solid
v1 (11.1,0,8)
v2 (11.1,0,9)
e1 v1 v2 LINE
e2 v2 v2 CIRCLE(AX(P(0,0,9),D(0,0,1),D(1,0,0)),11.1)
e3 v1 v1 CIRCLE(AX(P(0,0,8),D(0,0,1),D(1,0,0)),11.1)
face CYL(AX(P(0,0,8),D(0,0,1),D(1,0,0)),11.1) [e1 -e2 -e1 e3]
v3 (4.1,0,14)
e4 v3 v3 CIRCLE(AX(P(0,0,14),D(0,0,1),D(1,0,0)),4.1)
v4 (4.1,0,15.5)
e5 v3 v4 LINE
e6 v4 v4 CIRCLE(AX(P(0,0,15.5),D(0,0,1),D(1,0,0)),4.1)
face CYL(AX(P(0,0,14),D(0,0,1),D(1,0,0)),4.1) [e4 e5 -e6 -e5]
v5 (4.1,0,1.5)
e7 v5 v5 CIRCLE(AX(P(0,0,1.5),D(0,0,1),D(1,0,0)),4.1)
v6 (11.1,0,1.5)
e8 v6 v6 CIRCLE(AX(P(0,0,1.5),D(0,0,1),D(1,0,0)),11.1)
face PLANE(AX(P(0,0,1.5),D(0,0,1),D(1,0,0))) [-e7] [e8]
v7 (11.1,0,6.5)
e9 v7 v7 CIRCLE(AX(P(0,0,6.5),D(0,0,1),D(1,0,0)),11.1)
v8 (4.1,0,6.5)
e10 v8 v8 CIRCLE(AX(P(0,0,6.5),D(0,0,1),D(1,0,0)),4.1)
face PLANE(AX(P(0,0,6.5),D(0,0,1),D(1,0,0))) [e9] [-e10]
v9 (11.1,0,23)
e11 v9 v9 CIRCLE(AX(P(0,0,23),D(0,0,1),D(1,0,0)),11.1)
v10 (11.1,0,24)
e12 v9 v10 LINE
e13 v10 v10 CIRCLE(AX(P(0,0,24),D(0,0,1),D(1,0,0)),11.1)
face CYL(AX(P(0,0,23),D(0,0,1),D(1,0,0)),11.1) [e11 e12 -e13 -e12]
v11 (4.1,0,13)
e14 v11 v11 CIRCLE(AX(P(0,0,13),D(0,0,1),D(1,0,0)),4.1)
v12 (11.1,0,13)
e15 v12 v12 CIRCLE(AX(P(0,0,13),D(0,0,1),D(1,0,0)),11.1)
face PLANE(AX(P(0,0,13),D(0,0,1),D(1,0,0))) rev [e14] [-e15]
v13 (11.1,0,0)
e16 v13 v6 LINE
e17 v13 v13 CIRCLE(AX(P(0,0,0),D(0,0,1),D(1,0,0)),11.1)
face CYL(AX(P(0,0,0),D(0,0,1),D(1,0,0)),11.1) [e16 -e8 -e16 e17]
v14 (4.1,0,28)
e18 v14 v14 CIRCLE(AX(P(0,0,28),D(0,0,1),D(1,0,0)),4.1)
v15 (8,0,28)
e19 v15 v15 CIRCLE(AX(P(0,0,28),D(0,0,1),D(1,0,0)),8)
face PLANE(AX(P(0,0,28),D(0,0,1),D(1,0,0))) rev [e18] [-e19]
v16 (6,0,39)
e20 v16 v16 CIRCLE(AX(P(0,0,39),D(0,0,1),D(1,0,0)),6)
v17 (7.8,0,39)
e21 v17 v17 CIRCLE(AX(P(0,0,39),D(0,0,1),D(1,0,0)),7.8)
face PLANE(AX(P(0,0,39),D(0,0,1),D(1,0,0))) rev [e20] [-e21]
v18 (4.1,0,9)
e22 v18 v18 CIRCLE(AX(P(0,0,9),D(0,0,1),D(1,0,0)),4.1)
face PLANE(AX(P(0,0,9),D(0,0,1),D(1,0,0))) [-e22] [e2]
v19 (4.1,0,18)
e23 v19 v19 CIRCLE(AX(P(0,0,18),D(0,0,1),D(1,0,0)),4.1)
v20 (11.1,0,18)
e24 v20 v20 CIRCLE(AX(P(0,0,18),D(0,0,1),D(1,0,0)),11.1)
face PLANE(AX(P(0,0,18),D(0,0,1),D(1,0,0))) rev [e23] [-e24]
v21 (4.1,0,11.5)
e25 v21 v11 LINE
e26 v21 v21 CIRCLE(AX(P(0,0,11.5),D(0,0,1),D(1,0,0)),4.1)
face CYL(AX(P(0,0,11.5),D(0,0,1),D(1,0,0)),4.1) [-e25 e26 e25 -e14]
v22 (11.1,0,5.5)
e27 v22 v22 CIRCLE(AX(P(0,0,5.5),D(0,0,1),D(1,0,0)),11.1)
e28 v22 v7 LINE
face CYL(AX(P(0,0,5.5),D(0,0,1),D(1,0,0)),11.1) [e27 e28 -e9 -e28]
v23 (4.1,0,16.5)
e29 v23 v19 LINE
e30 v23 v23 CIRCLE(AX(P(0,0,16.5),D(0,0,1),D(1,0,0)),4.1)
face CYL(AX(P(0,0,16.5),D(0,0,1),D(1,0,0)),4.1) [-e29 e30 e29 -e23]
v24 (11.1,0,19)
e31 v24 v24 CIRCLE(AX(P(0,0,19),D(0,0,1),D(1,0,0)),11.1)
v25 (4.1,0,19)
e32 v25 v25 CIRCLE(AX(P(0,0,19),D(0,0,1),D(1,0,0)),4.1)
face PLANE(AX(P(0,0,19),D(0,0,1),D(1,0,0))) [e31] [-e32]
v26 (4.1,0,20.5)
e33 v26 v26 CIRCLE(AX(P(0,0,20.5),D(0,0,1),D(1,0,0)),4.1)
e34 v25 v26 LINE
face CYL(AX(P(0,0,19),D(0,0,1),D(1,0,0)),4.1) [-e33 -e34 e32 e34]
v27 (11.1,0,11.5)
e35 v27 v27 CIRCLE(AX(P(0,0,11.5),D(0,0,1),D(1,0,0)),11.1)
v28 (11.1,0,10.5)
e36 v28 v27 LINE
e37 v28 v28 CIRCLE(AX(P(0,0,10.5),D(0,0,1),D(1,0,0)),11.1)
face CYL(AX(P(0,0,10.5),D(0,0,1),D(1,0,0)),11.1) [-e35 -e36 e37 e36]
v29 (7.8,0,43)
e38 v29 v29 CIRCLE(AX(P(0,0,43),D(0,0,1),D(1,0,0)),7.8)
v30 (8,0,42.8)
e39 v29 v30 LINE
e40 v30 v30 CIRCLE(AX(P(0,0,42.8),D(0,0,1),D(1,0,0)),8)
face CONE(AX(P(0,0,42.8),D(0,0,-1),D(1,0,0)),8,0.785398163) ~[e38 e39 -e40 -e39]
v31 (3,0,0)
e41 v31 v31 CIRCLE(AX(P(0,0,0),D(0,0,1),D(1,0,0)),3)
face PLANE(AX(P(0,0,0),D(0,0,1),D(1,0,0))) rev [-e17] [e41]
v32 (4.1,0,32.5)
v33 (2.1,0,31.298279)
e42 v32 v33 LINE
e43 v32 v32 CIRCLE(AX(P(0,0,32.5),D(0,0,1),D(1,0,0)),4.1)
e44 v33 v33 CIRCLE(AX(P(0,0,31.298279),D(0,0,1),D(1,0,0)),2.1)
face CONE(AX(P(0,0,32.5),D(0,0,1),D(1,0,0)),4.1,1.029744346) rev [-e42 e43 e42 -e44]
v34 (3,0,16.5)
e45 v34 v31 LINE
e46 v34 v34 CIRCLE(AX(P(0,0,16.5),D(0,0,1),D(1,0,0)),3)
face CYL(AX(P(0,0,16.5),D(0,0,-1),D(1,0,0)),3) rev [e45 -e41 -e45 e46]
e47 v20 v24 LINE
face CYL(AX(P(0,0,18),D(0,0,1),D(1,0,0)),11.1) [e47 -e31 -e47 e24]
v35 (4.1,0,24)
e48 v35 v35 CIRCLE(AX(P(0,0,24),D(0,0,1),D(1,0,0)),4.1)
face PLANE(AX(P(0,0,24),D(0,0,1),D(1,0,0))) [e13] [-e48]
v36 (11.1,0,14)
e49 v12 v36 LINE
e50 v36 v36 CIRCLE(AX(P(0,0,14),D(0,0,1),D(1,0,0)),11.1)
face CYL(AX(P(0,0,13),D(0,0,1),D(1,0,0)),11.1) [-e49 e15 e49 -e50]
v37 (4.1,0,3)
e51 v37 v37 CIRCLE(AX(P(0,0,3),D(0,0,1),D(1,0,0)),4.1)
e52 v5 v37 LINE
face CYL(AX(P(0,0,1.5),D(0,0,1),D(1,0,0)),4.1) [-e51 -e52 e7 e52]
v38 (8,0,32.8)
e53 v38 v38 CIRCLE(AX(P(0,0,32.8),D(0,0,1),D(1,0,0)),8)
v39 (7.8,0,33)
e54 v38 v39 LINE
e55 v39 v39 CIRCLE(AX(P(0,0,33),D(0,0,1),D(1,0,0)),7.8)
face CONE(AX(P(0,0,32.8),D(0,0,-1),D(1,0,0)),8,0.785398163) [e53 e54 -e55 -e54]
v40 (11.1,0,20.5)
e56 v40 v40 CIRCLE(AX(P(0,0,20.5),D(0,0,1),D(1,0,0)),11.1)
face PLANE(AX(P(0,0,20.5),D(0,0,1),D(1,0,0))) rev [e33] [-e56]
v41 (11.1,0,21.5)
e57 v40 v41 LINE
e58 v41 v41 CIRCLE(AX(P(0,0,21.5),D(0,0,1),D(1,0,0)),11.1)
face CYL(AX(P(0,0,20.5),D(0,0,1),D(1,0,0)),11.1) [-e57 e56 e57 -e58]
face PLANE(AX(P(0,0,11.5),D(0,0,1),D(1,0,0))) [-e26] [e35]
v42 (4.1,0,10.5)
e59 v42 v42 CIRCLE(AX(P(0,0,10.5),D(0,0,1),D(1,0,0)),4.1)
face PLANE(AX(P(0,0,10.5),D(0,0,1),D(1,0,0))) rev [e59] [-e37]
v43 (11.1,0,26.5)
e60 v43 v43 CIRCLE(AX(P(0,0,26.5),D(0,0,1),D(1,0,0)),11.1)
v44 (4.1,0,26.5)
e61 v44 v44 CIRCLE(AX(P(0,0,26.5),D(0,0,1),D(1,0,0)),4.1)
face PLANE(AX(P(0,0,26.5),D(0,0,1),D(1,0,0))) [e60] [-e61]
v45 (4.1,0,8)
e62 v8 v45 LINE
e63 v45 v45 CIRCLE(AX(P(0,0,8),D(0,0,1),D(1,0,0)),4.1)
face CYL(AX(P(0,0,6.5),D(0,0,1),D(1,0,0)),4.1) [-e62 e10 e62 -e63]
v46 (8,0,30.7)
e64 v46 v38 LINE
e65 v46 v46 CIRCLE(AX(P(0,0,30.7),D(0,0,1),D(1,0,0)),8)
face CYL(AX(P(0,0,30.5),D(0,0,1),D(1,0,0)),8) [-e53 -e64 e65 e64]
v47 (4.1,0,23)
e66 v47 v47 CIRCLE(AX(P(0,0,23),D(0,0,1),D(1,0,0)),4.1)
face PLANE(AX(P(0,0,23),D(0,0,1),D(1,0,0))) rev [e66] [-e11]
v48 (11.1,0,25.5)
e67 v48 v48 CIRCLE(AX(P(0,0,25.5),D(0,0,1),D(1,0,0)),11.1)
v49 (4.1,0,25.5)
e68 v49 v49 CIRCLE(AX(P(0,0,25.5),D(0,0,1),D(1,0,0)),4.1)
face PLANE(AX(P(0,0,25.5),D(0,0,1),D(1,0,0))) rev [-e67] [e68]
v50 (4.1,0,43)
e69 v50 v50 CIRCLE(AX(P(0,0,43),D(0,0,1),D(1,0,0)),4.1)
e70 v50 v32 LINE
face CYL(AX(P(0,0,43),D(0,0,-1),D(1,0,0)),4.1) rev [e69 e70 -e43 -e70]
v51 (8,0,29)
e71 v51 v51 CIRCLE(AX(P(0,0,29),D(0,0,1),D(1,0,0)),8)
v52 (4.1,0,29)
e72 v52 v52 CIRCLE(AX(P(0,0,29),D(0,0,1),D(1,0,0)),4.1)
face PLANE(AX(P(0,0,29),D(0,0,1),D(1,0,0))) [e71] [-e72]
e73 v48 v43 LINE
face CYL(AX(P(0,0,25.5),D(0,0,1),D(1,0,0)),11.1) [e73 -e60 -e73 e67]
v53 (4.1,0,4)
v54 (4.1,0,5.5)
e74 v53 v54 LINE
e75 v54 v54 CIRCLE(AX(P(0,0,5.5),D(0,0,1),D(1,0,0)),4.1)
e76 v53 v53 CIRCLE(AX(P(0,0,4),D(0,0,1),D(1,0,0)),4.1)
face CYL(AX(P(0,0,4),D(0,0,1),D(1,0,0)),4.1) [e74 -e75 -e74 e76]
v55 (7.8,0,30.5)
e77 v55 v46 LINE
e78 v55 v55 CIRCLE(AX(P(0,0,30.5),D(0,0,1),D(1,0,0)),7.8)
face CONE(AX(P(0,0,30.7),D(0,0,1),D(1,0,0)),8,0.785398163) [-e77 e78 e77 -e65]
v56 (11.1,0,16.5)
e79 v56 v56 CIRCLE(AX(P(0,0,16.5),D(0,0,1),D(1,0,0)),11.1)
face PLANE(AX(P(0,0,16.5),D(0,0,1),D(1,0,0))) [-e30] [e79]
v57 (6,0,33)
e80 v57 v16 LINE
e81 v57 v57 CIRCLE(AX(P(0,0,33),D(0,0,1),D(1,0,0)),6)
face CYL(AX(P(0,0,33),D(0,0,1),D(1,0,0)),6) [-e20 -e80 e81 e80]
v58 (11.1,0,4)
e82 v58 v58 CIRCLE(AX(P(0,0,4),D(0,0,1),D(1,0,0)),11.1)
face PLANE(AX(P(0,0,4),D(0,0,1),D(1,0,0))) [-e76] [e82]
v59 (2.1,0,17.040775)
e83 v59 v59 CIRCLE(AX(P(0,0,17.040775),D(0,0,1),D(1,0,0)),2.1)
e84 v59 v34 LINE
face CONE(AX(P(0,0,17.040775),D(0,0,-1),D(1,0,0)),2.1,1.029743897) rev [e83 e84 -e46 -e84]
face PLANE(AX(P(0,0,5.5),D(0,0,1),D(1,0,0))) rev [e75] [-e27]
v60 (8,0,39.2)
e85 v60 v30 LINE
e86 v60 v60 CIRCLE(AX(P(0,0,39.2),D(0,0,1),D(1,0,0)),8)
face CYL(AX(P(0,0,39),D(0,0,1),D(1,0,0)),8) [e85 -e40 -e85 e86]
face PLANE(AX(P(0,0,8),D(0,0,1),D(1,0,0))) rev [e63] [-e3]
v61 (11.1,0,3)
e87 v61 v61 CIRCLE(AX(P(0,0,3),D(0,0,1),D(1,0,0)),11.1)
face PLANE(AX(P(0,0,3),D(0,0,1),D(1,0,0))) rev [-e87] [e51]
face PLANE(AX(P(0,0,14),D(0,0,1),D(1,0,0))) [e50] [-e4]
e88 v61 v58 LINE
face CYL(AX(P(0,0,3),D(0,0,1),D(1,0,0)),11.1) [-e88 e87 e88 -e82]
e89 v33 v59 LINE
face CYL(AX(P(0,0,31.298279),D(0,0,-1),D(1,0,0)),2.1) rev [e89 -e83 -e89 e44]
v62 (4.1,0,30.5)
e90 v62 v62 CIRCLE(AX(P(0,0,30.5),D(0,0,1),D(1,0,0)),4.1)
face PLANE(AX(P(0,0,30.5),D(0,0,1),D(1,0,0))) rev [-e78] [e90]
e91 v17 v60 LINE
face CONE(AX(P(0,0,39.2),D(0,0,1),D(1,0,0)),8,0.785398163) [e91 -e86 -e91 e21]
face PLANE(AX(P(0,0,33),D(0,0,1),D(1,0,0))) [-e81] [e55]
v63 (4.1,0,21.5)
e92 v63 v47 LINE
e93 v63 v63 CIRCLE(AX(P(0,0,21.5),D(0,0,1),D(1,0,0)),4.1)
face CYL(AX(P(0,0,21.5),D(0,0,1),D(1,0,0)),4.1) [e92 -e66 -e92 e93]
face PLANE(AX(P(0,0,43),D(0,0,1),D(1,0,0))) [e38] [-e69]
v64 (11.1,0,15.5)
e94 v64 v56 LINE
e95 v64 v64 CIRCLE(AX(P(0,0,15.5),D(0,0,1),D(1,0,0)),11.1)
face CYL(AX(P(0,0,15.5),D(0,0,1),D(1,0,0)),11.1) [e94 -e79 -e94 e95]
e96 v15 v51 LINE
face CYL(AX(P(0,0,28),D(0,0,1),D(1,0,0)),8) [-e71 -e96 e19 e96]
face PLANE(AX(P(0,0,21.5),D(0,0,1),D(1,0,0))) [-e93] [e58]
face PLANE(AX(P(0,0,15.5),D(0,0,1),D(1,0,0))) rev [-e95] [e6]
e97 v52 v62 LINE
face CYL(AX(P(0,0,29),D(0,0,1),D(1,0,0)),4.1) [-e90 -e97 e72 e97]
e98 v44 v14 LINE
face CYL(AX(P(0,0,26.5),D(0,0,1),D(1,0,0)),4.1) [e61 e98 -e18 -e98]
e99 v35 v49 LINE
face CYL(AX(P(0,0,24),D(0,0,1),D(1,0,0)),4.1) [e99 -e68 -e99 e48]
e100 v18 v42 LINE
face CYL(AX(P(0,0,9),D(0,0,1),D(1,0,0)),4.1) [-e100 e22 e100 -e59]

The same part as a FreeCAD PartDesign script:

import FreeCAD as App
import Part
import Sketcher
Q = App.Units.Quantity


def edges_at(feature, points):
    """Names of the edges that pass closest to the given points."""
    edges = feature.Shape.Edges
    near = lambda p: min(range(len(edges)), key=lambda i: edges[i].distToShape(Part.Vertex(*p))[0])
    return sorted({f"Edge{near(p) + 1}" for p in points})


def add_polygon(sketch, points):
    """Adds a closed chain of lines whose ends are joined by coincident constraints."""
    first, n = sketch.GeometryCount, len(points)
    for a, b in zip(points, points[1:] + points[:1]):
        sketch.addGeometry(Part.LineSegment(App.Vector(*a, 0), App.Vector(*b, 0)), False)
    for i in range(n):
        sketch.addConstraint(Sketcher.Constraint("Coincident", first + i, 2, first + (i + 1) % n, 1))

doc = App.newDocument("Part")
body = doc.addObject("PartDesign::Body", "Body")

# Sketch on XZ plane
sketch1 = doc.addObject("Sketcher::SketchObject", "Sketch")
body.addObject(sketch1)
sketch1.AttachmentSupport = (doc.XZ_Plane, [""])
sketch1.MapMode = "FlatFace"
add_polygon(sketch1, [(8, 43), (4.1, 43), (4.1, 32.5), (2.1, 31.3), (2.1, 17), (3, 16.5), (3, 0), (11.1, 0), (11.1, 1.5), (4.1, 1.5), (4.1, 3), (11.1, 3), (11.1, 4), (4.1, 4), (4.1, 5.5), (11.1, 5.5), (11.1, 6.5), (4.1, 6.5), (4.1, 8), (11.1, 8), (11.1, 9), (4.1, 9), (4.1, 10.5), (11.1, 10.5), (11.1, 11.5), (4.1, 11.5), (4.1, 13), (11.1, 13), (11.1, 14), (4.1, 14), (4.1, 15.5), (11.1, 15.5), (11.1, 16.5), (4.1, 16.5), (4.1, 18), (11.1, 18), (11.1, 19), (4.1, 19), (4.1, 20.5), (11.1, 20.5), (11.1, 21.5), (4.1, 21.5), (4.1, 23), (11.1, 23), (11.1, 24), (4.1, 24), (4.1, 25.5), (11.1, 25.5), (11.1, 26.5), (4.1, 26.5), (4.1, 28), (8, 28), (8, 29), (4.1, 29), (4.1, 30.5), (8, 30.5), (8, 33), (6, 33), (6, 39), (8, 39)])  # lines 0-59
sketch1.addConstraint([
    Sketcher.Constraint("Horizontal", 0),
    Sketcher.Constraint("Vertical", 1),
    Sketcher.Constraint("Vertical", 3),
    Sketcher.Constraint("Vertical", 5),
    Sketcher.Constraint("Horizontal", 6),
    Sketcher.Constraint("Vertical", 7),
    Sketcher.Constraint("Horizontal", 8),
    Sketcher.Constraint("Vertical", 9),
    Sketcher.Constraint("Horizontal", 10),
    Sketcher.Constraint("Vertical", 11),
    Sketcher.Constraint("Horizontal", 12),
    Sketcher.Constraint("Vertical", 13),
    Sketcher.Constraint("Horizontal", 14),
    Sketcher.Constraint("Vertical", 15),
    Sketcher.Constraint("Horizontal", 16),
    Sketcher.Constraint("Vertical", 17),
    Sketcher.Constraint("Horizontal", 18),
    Sketcher.Constraint("Vertical", 19),
    Sketcher.Constraint("Horizontal", 20),
    Sketcher.Constraint("Vertical", 21),
    Sketcher.Constraint("Horizontal", 22),
    Sketcher.Constraint("Vertical", 23),
    Sketcher.Constraint("Horizontal", 24),
    Sketcher.Constraint("Vertical", 25),
    Sketcher.Constraint("Horizontal", 26),
    Sketcher.Constraint("Vertical", 27),
    Sketcher.Constraint("Horizontal", 28),
    Sketcher.Constraint("Vertical", 29),
    Sketcher.Constraint("Horizontal", 30),
    Sketcher.Constraint("Vertical", 31),
    Sketcher.Constraint("Horizontal", 32),
    Sketcher.Constraint("Vertical", 33),
    Sketcher.Constraint("Horizontal", 34),
    Sketcher.Constraint("Vertical", 35),
    Sketcher.Constraint("Horizontal", 36),
    Sketcher.Constraint("Vertical", 37),
    Sketcher.Constraint("Horizontal", 38),
    Sketcher.Constraint("Vertical", 39),
    Sketcher.Constraint("Horizontal", 40),
    Sketcher.Constraint("Vertical", 41),
    Sketcher.Constraint("Horizontal", 42),
    Sketcher.Constraint("Vertical", 43),
    Sketcher.Constraint("Horizontal", 44),
    Sketcher.Constraint("Vertical", 45),
    Sketcher.Constraint("Horizontal", 46),
    Sketcher.Constraint("Vertical", 47),
    Sketcher.Constraint("Horizontal", 48),
    Sketcher.Constraint("Vertical", 49),
    Sketcher.Constraint("Horizontal", 50),
    Sketcher.Constraint("Vertical", 51),
    Sketcher.Constraint("Horizontal", 52),
    Sketcher.Constraint("Vertical", 53),
    Sketcher.Constraint("Horizontal", 54),
    Sketcher.Constraint("Vertical", 55),
    Sketcher.Constraint("Horizontal", 56),
    Sketcher.Constraint("Vertical", 57),
    Sketcher.Constraint("Horizontal", 58),
    Sketcher.Constraint("Vertical", 59),
    Sketcher.Constraint("PointOnObject", 5, 2, -1),
    Sketcher.Constraint("Horizontal", 4, 2, 31, 2),
    Sketcher.Constraint("Vertical", 1, 2, 8, 2),
    Sketcher.Constraint("Vertical", 7, 2, 10, 2),
    Sketcher.Constraint("Vertical", 9, 2, 12, 2),
    Sketcher.Constraint("Vertical", 11, 2, 14, 2),
    Sketcher.Constraint("Vertical", 13, 2, 16, 2),
    Sketcher.Constraint("Vertical", 15, 2, 18, 2),
    Sketcher.Constraint("Vertical", 17, 2, 20, 2),
    Sketcher.Constraint("Vertical", 19, 2, 22, 2),
    Sketcher.Constraint("Vertical", 21, 2, 24, 2),
    Sketcher.Constraint("Vertical", 23, 2, 26, 2),
    Sketcher.Constraint("Vertical", 25, 2, 28, 2),
    Sketcher.Constraint("Vertical", 27, 2, 30, 2),
    Sketcher.Constraint("Vertical", 29, 2, 32, 2),
    Sketcher.Constraint("Vertical", 31, 2, 34, 2),
    Sketcher.Constraint("Vertical", 33, 2, 36, 2),
    Sketcher.Constraint("Vertical", 35, 2, 38, 2),
    Sketcher.Constraint("Vertical", 37, 2, 40, 2),
    Sketcher.Constraint("Vertical", 39, 2, 42, 2),
    Sketcher.Constraint("Vertical", 41, 2, 44, 2),
    Sketcher.Constraint("Vertical", 43, 2, 46, 2),
    Sketcher.Constraint("Vertical", 45, 2, 48, 2),
    Sketcher.Constraint("Vertical", 49, 2, 52, 2),
    Sketcher.Constraint("Vertical", 51, 2, 54, 2),
    Sketcher.Constraint("Vertical", 55, 2, 58, 2),
    Sketcher.Constraint("Equal", 7, 9),
    Sketcher.Constraint("Equal", 9, 13),
    Sketcher.Constraint("Equal", 11, 15),
    Sketcher.Constraint("Equal", 13, 17),
    Sketcher.Constraint("Equal", 15, 19),
    Sketcher.Constraint("Equal", 17, 21),
    Sketcher.Constraint("Equal", 19, 23),
    Sketcher.Constraint("Equal", 21, 25),
    Sketcher.Constraint("Equal", 23, 27),
    Sketcher.Constraint("Equal", 25, 29),
    Sketcher.Constraint("Equal", 27, 31),
    Sketcher.Constraint("Equal", 29, 33),
    Sketcher.Constraint("Equal", 31, 35),
    Sketcher.Constraint("Equal", 33, 37),
    Sketcher.Constraint("Equal", 35, 39),
    Sketcher.Constraint("Equal", 37, 41),
    Sketcher.Constraint("Equal", 39, 43),
    Sketcher.Constraint("Equal", 41, 45),
    Sketcher.Constraint("Equal", 43, 47),
    Sketcher.Constraint("Equal", 45, 49),
    Sketcher.Constraint("Equal", 47, 51),
    Sketcher.Constraint("Equal", 49, 53),
    Sketcher.Constraint("DistanceX", 8, 2, 8, 1, 7.0),
    Sketcher.Constraint("DistanceX", 56, 2, 56, 1, 2.0),
    Sketcher.Constraint("DistanceY", 11, 1, 11, 2, 1.0),
    Sketcher.Constraint("DistanceY", 57, 1, 57, 2, 6.0),
    Sketcher.Constraint("DistanceY", 59, 1, 59, 2, 4.0),
    Sketcher.Constraint("Angle", 2, Q("-149.000005 deg")),
    Sketcher.Constraint("DistanceX", 0, 2, 0, 1, 3.9),
    Sketcher.Constraint("DistanceX", 6, 1, 6, 2, 8.1),
    Sketcher.Constraint("DistanceY", 1, 2, 1, 1, 10.5),
    Sketcher.Constraint("DistanceY", 5, 2, 5, 1, 16.5),
    Sketcher.Constraint("DistanceY", 55, 1, 55, 2, 2.5),
    Sketcher.Constraint("DistanceX", -1, 1, 4, 2, 3.0),
    Sketcher.Constraint("DistanceX", 2, 2, 1, 2, 2.0),
    Sketcher.Constraint("Distance", 4, 1.04997),
])
revolution = doc.addObject("PartDesign::Revolution", "Revolution")
body.addObject(revolution)
revolution.Profile = sketch1
revolution.ReferenceAxis = (sketch1, ["V_Axis"])
revolution.Angle = 360
doc.recompute()

chamfer = doc.addObject("PartDesign::Chamfer", "Chamfer")
body.addObject(chamfer)
chamfer.Base = (revolution, edges_at(revolution, [
    (-8, 0, 30.5),
    (-8, 0, 33),
    (-8, 0, 39),
    (-8, 0, 43),
]))
chamfer.Size = 0.2

doc.recompute()
